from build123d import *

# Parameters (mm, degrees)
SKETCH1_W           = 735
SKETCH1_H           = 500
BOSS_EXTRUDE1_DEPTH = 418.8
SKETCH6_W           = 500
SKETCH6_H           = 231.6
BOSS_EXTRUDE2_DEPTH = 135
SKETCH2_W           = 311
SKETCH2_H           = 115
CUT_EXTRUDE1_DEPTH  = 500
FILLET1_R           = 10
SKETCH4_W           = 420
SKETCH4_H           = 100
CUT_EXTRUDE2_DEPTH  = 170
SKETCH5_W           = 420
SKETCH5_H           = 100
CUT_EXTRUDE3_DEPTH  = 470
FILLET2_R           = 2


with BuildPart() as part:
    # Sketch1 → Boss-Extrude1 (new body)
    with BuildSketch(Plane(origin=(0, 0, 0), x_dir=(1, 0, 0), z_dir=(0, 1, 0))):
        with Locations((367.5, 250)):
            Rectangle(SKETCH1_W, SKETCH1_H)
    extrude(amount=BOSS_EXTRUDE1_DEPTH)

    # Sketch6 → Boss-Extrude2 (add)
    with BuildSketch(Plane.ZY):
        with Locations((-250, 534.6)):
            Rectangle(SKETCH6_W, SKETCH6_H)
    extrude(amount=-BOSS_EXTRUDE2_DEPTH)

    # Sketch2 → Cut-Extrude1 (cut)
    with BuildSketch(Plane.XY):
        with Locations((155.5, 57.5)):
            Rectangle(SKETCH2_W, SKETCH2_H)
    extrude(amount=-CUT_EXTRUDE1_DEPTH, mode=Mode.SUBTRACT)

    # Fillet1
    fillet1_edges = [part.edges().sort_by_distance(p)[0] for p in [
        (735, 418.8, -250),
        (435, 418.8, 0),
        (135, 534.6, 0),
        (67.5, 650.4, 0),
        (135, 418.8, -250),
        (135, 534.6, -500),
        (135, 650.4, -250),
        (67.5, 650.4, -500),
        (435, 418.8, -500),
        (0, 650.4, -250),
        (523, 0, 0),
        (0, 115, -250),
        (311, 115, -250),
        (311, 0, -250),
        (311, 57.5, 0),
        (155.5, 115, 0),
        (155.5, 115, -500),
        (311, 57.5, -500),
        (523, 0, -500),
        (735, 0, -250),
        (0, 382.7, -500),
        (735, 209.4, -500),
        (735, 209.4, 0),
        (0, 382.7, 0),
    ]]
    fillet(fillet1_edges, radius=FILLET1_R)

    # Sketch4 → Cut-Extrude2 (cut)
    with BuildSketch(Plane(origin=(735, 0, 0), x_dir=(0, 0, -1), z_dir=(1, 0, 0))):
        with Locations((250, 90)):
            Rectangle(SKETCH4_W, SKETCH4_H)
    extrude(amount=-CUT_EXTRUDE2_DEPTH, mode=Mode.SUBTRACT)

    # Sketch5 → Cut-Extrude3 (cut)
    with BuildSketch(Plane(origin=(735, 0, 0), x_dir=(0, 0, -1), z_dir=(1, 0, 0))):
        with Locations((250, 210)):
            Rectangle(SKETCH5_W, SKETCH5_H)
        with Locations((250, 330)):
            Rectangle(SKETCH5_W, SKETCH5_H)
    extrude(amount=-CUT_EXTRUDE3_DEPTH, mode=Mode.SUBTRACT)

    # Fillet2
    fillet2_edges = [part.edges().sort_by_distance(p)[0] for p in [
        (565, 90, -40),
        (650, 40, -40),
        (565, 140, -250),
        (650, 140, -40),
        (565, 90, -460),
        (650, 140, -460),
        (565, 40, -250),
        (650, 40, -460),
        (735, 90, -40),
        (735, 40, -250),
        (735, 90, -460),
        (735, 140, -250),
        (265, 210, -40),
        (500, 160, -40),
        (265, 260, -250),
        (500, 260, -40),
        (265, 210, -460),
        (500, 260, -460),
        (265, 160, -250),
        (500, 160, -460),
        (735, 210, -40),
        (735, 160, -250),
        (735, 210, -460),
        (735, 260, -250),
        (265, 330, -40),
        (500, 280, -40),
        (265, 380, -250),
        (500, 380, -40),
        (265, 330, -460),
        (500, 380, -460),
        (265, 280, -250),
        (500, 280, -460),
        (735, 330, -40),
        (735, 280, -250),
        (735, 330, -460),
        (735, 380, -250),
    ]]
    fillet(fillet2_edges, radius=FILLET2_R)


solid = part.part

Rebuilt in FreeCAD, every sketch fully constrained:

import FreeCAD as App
import Part
import Sketcher
Q = App.Units.Quantity


def edges_at(feature, points):
    """Names of the edges that pass closest to the given points."""
    edges = feature.Shape.Edges
    near = lambda p: min(range(len(edges)), key=lambda i: edges[i].distToShape(Part.Vertex(*p))[0])
    return sorted({f"Edge{near(p) + 1}" for p in points})


def add_polygon(sketch, points):
    """Adds a closed chain of lines whose ends are joined by coincident constraints."""
    first, n = sketch.GeometryCount, len(points)
    for a, b in zip(points, points[1:] + points[:1]):
        sketch.addGeometry(Part.LineSegment(App.Vector(*a, 0), App.Vector(*b, 0)), False)
    for i in range(n):
        sketch.addConstraint(Sketcher.Constraint("Coincident", first + i, 2, first + (i + 1) % n, 1))

doc = App.newDocument("Part")
body = doc.addObject("PartDesign::Body", "Body")

# Sketch on XZ plane
sketch1 = body.newObject("Sketcher::SketchObject", "Sketch")
sketch1.AttachmentSupport = (doc.getObject("XZ_Plane"), [""])
sketch1.MapMode = "FlatFace"
add_polygon(sketch1, [(0, -500), (0, 0), (735, 0), (735, -500)])  # lines 0-3
sketch1.addConstraint([
    Sketcher.Constraint("Vertical", 0),
    Sketcher.Constraint("Horizontal", 1),
    Sketcher.Constraint("Vertical", 2),
    Sketcher.Constraint("Horizontal", 3),
    Sketcher.Constraint("Coincident", 0, 2, -1, 1),
    Sketcher.Constraint("DistanceX", 1, 1, 1, 2, Q("735 mm")),
    Sketcher.Constraint("DistanceY", 0, 1, 0, 2, Q("500 mm")),
])
pad1 = body.newObject("PartDesign::Pad", "Pad")
pad1.Profile = sketch1
pad1.Length = 418.8
pad1.Reversed = True

# Sketch on YZ plane
sketch2 = body.newObject("Sketcher::SketchObject", "Sketch001")
sketch2.AttachmentSupport = (doc.getObject("YZ_Plane"), [""])
sketch2.MapMode = "FlatFace"
add_polygon(sketch2, [(650, -500), (419, -500), (419, 0), (650, 0)])  # lines 0-3
sketch2.addConstraint([
    Sketcher.Constraint("Horizontal", 0),
    Sketcher.Constraint("Vertical", 1),
    Sketcher.Constraint("Horizontal", 2),
    Sketcher.Constraint("Vertical", 3),
    Sketcher.Constraint("PointOnObject", 1, 2, -1),
    Sketcher.Constraint("DistanceY", 1, 1, 1, 2, Q("500 mm")),
    Sketcher.Constraint("DistanceX", 0, 2, 0, 1, Q("231.6 mm")),
    Sketcher.Constraint("DistanceX", -1, 1, 0, 2, Q("418.8 mm")),
])
pad2 = body.newObject("PartDesign::Pad", "Pad001")
pad2.Profile = sketch2
pad2.Length = 135

# Sketch on XY plane
sketch3 = body.newObject("Sketcher::SketchObject", "Sketch002")
sketch3.AttachmentSupport = (doc.getObject("XY_Plane"), [""])
sketch3.MapMode = "FlatFace"
add_polygon(sketch3, [(0, 115), (0, 0), (311, 0), (311, 115)])  # lines 0-3
sketch3.addConstraint([
    Sketcher.Constraint("Vertical", 0),
    Sketcher.Constraint("Horizontal", 1),
    Sketcher.Constraint("Vertical", 2),
    Sketcher.Constraint("Horizontal", 3),
    Sketcher.Constraint("Coincident", 0, 2, -1, 1),
    Sketcher.Constraint("DistanceX", 1, 1, 1, 2, Q("311 mm")),
    Sketcher.Constraint("DistanceY", 0, 2, 0, 1, Q("115 mm")),
])
pocket1 = body.newObject("PartDesign::Pocket", "Pocket")
pocket1.Profile = sketch3
pocket1.Length = 500
doc.recompute()

fillet = body.newObject("PartDesign::Fillet", "Fillet")
fillet.Base = (pocket1, ["Edge1"])
fillet.UseAllEdges = True
fillet.Radius = 10

# Sketch on YZ plane
sketch4 = body.newObject("Sketcher::SketchObject", "Sketch003")
sketch4.AttachmentSupport = (doc.getObject("YZ_Plane"), [""])
sketch4.MapMode = "FlatFace"
sketch4.AttachmentOffset = App.Placement(App.Vector(0, 0, 735), App.Rotation())
add_polygon(sketch4, [(140, -40), (40, -40), (40, -460), (140, -460)])  # lines 0-3
sketch4.addConstraint([
    Sketcher.Constraint("Horizontal", 0),
    Sketcher.Constraint("Vertical", 1),
    Sketcher.Constraint("Horizontal", 2),
    Sketcher.Constraint("Vertical", 3),
    Sketcher.Constraint("DistanceX", 0, 2, 0, 1, Q("100 mm")),
    Sketcher.Constraint("DistanceY", 1, 2, 1, 1, Q("420 mm")),
    Sketcher.Constraint("DistanceX", -1, 1, 0, 2, Q("40 mm")),
    Sketcher.Constraint("DistanceY", 0, 2, -1, 1, Q("40 mm")),
])
pocket2 = body.newObject("PartDesign::Pocket", "Pocket001")
pocket2.Profile = sketch4
pocket2.Length = 170

# Sketch on YZ plane
sketch5 = body.newObject("Sketcher::SketchObject", "Sketch004")
sketch5.AttachmentSupport = (doc.getObject("YZ_Plane"), [""])
sketch5.MapMode = "FlatFace"
sketch5.AttachmentOffset = App.Placement(App.Vector(0, 0, 735), App.Rotation())
add_polygon(sketch5, [(260, -40), (160, -40), (160, -460), (260, -460)])  # lines 0-3
add_polygon(sketch5, [(380, -40), (280, -40), (280, -460), (380, -460)])  # lines 4-7
sketch5.addConstraint([
    Sketcher.Constraint("Horizontal", 0),
    Sketcher.Constraint("Vertical", 1),
    Sketcher.Constraint("Horizontal", 2),
    Sketcher.Constraint("Vertical", 3),
    Sketcher.Constraint("Horizontal", 4),
    Sketcher.Constraint("Vertical", 5),
    Sketcher.Constraint("Horizontal", 6),
    Sketcher.Constraint("Vertical", 7),
    Sketcher.Constraint("Horizontal", 3, 2, 4, 2),
    Sketcher.Constraint("Horizontal", 2, 2, 5, 2),
    Sketcher.Constraint("Equal", 2, 4),
    Sketcher.Constraint("DistanceX", 0, 2, 0, 1, Q("100 mm")),
    Sketcher.Constraint("DistanceY", 1, 2, 1, 1, Q("420 mm")),
    Sketcher.Constraint("DistanceX", -1, 1, 0, 2, Q("160 mm")),
    Sketcher.Constraint("DistanceY", 0, 2, -1, 1, Q("40 mm")),
    Sketcher.Constraint("DistanceX", -1, 1, 4, 2, Q("280 mm")),
])
pocket3 = body.newObject("PartDesign::Pocket", "Pocket002")
pocket3.Profile = sketch5
pocket3.Length = 470
doc.recompute()

fillet2 = body.newObject("PartDesign::Fillet", "Fillet001")
fillet2.Base = (pocket3, edges_at(pocket3, [
    (565, 90, -40),
    (650, 40, -40),
    (565, 140, -250),
    (650, 140, -40),
    (565, 90, -460),
    (650, 140, -460),
    (565, 40, -250),
    (650, 40, -460),
    (735, 90, -40),
    (735, 40, -250),
    (735, 90, -460),
    (735, 140, -250),
    (265, 210, -40),
    (500, 160, -40),
    (265, 260, -250),
    (500, 260, -40),
    (265, 210, -460),
    (500, 260, -460),
    (265, 160, -250),
    (500, 160, -460),
    (735, 210, -40),
    (735, 160, -250),
    (735, 210, -460),
    (735, 260, -250),
    (265, 330, -40),
    (500, 280, -40),
    (265, 380, -250),
    (500, 380, -40),
    (265, 330, -460),
    (500, 380, -460),
    (265, 280, -250),
    (500, 280, -460),
    (735, 330, -40),
    (735, 280, -250),
    (735, 330, -460),
    (735, 380, -250),
]))
fillet2.Radius = 2

doc.recompute()
